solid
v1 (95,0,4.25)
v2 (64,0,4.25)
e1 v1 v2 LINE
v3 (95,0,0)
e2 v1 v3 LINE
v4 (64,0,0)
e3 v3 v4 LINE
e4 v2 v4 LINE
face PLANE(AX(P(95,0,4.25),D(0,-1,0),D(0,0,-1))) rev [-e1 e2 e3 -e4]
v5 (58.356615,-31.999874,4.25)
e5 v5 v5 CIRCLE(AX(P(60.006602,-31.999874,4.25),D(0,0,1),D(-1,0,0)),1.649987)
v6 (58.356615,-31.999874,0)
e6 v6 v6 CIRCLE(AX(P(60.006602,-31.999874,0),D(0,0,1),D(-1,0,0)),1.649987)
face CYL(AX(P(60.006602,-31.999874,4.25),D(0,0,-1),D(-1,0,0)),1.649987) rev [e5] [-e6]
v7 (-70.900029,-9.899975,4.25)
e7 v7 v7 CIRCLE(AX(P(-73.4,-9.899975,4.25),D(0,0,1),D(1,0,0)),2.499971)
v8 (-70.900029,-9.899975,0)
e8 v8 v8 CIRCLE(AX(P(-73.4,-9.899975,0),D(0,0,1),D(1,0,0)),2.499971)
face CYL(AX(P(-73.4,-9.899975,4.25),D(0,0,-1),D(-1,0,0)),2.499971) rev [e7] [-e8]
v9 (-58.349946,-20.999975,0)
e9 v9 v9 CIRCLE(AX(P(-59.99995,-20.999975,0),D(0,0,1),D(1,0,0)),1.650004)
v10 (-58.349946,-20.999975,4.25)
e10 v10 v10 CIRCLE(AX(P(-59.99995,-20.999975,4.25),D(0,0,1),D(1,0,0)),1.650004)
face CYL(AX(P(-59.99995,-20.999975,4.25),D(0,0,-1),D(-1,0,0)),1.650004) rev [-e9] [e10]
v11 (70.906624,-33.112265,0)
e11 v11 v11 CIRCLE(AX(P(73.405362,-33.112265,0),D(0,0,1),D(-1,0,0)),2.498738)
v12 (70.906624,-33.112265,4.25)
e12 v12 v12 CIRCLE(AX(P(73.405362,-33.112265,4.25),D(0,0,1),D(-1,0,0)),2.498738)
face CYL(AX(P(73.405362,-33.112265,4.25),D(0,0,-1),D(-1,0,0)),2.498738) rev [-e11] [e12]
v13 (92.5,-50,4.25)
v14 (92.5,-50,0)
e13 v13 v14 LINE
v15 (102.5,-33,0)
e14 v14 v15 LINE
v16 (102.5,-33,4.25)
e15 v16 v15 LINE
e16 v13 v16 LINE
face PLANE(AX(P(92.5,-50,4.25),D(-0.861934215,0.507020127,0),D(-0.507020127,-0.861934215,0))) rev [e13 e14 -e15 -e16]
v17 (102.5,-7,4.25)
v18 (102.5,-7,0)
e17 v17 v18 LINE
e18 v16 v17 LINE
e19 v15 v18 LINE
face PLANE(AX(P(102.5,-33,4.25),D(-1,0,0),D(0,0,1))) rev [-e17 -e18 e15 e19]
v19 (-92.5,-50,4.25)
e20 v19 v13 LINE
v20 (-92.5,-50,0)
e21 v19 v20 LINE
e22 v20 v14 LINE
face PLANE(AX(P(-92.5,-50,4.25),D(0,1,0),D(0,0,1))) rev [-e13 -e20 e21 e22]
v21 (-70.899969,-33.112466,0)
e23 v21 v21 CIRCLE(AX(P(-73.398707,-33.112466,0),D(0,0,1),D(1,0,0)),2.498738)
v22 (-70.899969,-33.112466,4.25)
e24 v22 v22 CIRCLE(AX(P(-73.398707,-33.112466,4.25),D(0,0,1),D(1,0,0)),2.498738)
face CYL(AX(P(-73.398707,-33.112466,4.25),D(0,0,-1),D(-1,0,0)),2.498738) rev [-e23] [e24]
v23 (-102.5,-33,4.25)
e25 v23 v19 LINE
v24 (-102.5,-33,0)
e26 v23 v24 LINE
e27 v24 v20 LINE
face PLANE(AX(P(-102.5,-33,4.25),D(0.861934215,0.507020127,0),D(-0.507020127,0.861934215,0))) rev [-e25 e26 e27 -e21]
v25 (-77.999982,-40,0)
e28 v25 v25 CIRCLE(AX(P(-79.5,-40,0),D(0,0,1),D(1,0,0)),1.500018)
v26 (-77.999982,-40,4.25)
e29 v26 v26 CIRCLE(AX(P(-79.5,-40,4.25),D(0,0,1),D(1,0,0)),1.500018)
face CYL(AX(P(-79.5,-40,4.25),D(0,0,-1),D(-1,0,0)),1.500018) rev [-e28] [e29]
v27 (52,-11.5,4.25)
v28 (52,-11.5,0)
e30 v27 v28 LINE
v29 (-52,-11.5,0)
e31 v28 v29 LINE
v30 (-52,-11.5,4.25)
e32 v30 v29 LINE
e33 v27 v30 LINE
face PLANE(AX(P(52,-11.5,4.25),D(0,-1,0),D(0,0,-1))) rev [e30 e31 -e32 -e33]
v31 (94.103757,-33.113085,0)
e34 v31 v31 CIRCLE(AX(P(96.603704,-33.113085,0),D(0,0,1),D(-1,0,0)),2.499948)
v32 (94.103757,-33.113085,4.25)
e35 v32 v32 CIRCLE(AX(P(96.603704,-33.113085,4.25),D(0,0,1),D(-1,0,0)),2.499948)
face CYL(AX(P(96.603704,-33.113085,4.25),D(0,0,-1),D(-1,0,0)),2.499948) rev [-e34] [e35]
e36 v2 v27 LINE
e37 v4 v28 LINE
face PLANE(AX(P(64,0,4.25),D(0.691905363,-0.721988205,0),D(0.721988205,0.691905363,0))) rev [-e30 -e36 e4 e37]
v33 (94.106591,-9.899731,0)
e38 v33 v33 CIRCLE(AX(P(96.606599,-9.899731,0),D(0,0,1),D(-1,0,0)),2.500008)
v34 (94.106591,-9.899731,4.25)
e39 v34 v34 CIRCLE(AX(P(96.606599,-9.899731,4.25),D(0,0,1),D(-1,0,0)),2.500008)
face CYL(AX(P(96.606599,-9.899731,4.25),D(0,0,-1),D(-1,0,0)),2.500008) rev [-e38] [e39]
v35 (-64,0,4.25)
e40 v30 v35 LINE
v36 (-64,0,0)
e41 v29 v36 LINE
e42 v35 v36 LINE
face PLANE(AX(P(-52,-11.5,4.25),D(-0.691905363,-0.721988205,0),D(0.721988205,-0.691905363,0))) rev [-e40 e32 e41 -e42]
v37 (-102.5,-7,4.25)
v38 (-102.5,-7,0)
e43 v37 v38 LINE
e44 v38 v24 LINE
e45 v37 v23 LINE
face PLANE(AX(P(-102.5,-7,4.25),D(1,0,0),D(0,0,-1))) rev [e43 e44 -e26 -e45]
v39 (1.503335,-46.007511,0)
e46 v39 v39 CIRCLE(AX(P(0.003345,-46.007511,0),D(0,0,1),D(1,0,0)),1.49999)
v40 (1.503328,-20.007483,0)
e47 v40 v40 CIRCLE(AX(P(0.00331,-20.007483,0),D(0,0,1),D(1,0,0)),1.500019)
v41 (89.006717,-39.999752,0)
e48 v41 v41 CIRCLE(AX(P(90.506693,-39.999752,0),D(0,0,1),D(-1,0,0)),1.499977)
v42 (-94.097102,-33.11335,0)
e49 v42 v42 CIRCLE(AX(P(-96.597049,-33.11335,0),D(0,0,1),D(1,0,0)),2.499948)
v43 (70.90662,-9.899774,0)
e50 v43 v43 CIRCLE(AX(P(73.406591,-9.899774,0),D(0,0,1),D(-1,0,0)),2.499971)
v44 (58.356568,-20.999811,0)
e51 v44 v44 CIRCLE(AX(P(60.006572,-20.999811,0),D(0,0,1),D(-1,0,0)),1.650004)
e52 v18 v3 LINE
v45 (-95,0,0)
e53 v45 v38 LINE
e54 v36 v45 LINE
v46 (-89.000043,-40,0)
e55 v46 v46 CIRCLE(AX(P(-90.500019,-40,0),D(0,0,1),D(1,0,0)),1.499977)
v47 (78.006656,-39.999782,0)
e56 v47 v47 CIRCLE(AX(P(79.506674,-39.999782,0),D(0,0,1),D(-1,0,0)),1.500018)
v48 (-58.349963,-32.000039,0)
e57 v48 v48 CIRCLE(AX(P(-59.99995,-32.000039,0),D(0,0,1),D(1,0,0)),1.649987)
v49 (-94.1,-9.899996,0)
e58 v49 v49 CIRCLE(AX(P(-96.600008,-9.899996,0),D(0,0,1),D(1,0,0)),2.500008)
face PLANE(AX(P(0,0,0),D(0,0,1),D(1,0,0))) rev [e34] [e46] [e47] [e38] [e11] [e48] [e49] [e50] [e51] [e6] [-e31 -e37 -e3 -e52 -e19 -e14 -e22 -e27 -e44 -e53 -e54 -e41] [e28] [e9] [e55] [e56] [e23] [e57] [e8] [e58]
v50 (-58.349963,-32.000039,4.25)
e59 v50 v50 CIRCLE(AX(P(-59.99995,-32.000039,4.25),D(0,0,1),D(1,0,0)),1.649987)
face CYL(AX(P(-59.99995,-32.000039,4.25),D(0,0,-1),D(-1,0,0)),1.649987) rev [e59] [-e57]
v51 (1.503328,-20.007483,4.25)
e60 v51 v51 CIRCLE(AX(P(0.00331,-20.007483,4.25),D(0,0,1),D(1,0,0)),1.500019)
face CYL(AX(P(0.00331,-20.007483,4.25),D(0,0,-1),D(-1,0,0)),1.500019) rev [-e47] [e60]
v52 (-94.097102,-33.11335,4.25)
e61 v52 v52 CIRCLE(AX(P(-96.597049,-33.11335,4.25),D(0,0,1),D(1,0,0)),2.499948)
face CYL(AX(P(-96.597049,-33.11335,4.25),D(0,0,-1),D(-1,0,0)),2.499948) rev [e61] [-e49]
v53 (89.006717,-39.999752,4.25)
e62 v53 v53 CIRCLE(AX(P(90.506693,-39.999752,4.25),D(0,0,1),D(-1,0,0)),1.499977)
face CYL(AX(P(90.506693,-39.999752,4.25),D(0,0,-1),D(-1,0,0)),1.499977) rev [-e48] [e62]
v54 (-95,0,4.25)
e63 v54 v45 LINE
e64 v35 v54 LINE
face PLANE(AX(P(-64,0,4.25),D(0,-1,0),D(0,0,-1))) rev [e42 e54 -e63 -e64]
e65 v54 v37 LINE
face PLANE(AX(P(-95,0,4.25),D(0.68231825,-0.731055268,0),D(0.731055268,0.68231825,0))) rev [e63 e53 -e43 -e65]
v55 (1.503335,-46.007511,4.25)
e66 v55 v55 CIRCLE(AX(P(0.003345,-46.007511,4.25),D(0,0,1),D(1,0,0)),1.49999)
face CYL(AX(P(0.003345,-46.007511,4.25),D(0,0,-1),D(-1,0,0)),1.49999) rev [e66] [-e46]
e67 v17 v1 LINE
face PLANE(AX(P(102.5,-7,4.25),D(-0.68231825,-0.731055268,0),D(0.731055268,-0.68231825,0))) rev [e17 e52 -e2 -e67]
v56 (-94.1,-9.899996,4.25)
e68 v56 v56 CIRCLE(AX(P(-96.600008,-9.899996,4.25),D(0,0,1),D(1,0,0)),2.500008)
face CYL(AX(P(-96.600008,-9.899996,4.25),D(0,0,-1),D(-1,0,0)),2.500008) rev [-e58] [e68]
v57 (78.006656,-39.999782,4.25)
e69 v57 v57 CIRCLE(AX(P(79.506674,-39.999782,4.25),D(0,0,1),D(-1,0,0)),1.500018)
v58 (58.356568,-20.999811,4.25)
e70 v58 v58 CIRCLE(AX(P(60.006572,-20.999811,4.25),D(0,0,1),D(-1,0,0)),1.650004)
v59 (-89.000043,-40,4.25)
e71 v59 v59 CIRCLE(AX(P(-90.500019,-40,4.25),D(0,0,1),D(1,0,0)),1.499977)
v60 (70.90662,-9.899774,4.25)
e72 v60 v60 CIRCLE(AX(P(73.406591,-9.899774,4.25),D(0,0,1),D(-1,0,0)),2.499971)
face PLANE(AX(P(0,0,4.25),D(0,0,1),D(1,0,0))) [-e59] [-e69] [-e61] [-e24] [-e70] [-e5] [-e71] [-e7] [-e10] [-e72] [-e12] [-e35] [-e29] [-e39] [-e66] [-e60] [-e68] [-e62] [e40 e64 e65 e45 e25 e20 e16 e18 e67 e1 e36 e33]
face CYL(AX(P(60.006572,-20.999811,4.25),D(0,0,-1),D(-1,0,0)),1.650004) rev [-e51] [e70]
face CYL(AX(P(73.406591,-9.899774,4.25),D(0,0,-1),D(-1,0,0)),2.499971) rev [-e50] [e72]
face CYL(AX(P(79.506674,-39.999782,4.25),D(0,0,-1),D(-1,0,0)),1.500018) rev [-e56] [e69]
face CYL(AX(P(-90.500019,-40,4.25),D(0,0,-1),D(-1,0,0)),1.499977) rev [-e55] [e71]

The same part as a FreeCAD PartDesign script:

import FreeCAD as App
import Part
import Sketcher
Q = App.Units.Quantity

doc = App.newDocument("Part")
params = doc.addObject("Spreadsheet::Sheet", "Params")
for row, (alias, value) in enumerate([
    ("sketch1_width", "31 mm"),
    ("sketch1_width2", "104 mm"),
    ("sketch1_width3", "185 mm"),
    ("sketch1_height", "26 mm"),
    ("pad1_length", "4.25 mm"),
], start=1):
    params.set(f"A{row}", alias)
    params.set(f"B{row}", "=" + value)
    params.setAlias(f"B{row}", alias)

body = doc.addObject("PartDesign::Body", "Body")

# Sketch on XY plane
sketch1 = body.newObject("Sketcher::SketchObject", "Sketch")
sketch1.AttachmentSupport = (doc.getObject("XY_Plane"), [""])
sketch1.MapMode = "FlatFace"
sketch1.addGeometry(Part.LineSegment(App.Vector(102.5, -33, 0), App.Vector(102.5, -7, 0)), False)
sketch1.addGeometry(Part.LineSegment(App.Vector(102.5, -7, 0), App.Vector(95, 0, 0)), False)
sketch1.addGeometry(Part.LineSegment(App.Vector(95, 0, 0), App.Vector(64, 0, 0)), False)
sketch1.addGeometry(Part.LineSegment(App.Vector(64, 0, 0), App.Vector(52, -11.5, 0)), False)
sketch1.addGeometry(Part.LineSegment(App.Vector(52, -11.5, 0), App.Vector(-52, -11.5, 0)), False)
sketch1.addGeometry(Part.LineSegment(App.Vector(-52, -11.5, 0), App.Vector(-64, 0, 0)), False)
sketch1.addGeometry(Part.LineSegment(App.Vector(-64, 0, 0), App.Vector(-95, 0, 0)), False)
sketch1.addGeometry(Part.LineSegment(App.Vector(-95, 0, 0), App.Vector(-102.5, -7, 0)), False)
sketch1.addGeometry(Part.LineSegment(App.Vector(-102.5, -7, 0), App.Vector(-102.5, -33, 0)), False)
sketch1.addGeometry(Part.LineSegment(App.Vector(-102.5, -33, 0), App.Vector(-92.5, -50, 0)), False)
sketch1.addGeometry(Part.LineSegment(App.Vector(-92.5, -50, 0), App.Vector(92.5, -50, 0)), False)
sketch1.addGeometry(Part.LineSegment(App.Vector(92.5, -50, 0), App.Vector(102.5, -33, 0)), False)
sketch1.addGeometry(Part.Circle(App.Vector(-90.5, -40, 0), App.Vector(0, 0, 1), 1.5), False)
sketch1.addGeometry(Part.Circle(App.Vector(-79.5, -40, 0), App.Vector(0, 0, 1), 1.5), False)
sketch1.addGeometry(Part.Circle(App.Vector(-96.6, -33.1, 0), App.Vector(0, 0, 1), 2.5), False)
sketch1.addGeometry(Part.Circle(App.Vector(-73.4, -33.1, 0), App.Vector(0, 0, 1), 2.5), False)
sketch1.addGeometry(Part.Circle(App.Vector(-60, -32, 0), App.Vector(0, 0, 1), 1.6), False)
sketch1.addGeometry(Part.Circle(App.Vector(0, -46, 0), App.Vector(0, 0, 1), 1.5), False)
sketch1.addGeometry(Part.Circle(App.Vector(79.5, -40, 0), App.Vector(0, 0, 1), 1.5), False)
sketch1.addGeometry(Part.Circle(App.Vector(90.5, -40, 0), App.Vector(0, 0, 1), 1.5), False)
sketch1.addGeometry(Part.Circle(App.Vector(73.4, -33.1, 0), App.Vector(0, 0, 1), 2.5), False)
sketch1.addGeometry(Part.Circle(App.Vector(96.6, -33.1, 0), App.Vector(0, 0, 1), 2.5), False)
sketch1.addGeometry(Part.Circle(App.Vector(60, -32, 0), App.Vector(0, 0, 1), 1.6), False)
sketch1.addGeometry(Part.Circle(App.Vector(-60, -21, 0), App.Vector(0, 0, 1), 1.7), False)
sketch1.addGeometry(Part.Circle(App.Vector(-96.6, -9.9, 0), App.Vector(0, 0, 1), 2.5), False)
sketch1.addGeometry(Part.Circle(App.Vector(-73.4, -9.9, 0), App.Vector(0, 0, 1), 2.5), False)
sketch1.addGeometry(Part.Circle(App.Vector(0, -20, 0), App.Vector(0, 0, 1), 1.5), False)
sketch1.addGeometry(Part.Circle(App.Vector(60, -21, 0), App.Vector(0, 0, 1), 1.7), False)
sketch1.addGeometry(Part.Circle(App.Vector(73.4, -9.9, 0), App.Vector(0, 0, 1), 2.5), False)
sketch1.addGeometry(Part.Circle(App.Vector(96.6, -9.9, 0), App.Vector(0, 0, 1), 2.5), False)
sketch1.addConstraint(Sketcher.Constraint("Coincident", 0, 2, 1, 1))
sketch1.addConstraint(Sketcher.Constraint("Coincident", 1, 2, 2, 1))
sketch1.addConstraint(Sketcher.Constraint("Coincident", 2, 2, 3, 1))
sketch1.addConstraint(Sketcher.Constraint("Coincident", 3, 2, 4, 1))
sketch1.addConstraint(Sketcher.Constraint("Coincident", 4, 2, 5, 1))
sketch1.addConstraint(Sketcher.Constraint("Coincident", 5, 2, 6, 1))
sketch1.addConstraint(Sketcher.Constraint("Coincident", 6, 2, 7, 1))
sketch1.addConstraint(Sketcher.Constraint("Coincident", 7, 2, 8, 1))
sketch1.addConstraint(Sketcher.Constraint("Coincident", 8, 2, 9, 1))
sketch1.addConstraint(Sketcher.Constraint("Coincident", 9, 2, 10, 1))
sketch1.addConstraint(Sketcher.Constraint("Coincident", 10, 2, 11, 1))
sketch1.addConstraint(Sketcher.Constraint("Coincident", 11, 2, 0, 1))
sketch1.addConstraint(Sketcher.Constraint("Vertical", 0))
sketch1.addConstraint(Sketcher.Constraint("Horizontal", 2))
sketch1.addConstraint(Sketcher.Constraint("Horizontal", 4))
sketch1.addConstraint(Sketcher.Constraint("Horizontal", 6))
sketch1.addConstraint(Sketcher.Constraint("Vertical", 8))
sketch1.addConstraint(Sketcher.Constraint("Horizontal", 10))
sketch1.addConstraint(Sketcher.Constraint("Equal", 13, 18))
sketch1.addConstraint(Sketcher.Constraint("Equal", 12, 19))
sketch1.addConstraint(Sketcher.Constraint("Equal", 15, 20))
sketch1.addConstraint(Sketcher.Constraint("Equal", 14, 21))
sketch1.addConstraint(Sketcher.Constraint("Equal", 16, 22))
sketch1.addConstraint(Sketcher.Constraint("Equal", 18, 26))
sketch1.addConstraint(Sketcher.Constraint("Equal", 23, 27))
sketch1.addConstraint(Sketcher.Constraint("Equal", 25, 28))
sketch1.addConstraint(Sketcher.Constraint("Equal", 24, 29))
sketch1.addConstraint(Sketcher.Constraint("Symmetric", 2, 2, 5, 2, -1, 1))
sketch1.addConstraint(Sketcher.Constraint("Symmetric", 1, 2, 6, 2, -2))
sketch1.addConstraint(Sketcher.Constraint("Symmetric", 0, 2, 7, 2, -2))
sketch1.addConstraint(Sketcher.Constraint("Horizontal", 12, 3, 13, 3))
sketch1.addConstraint(Sketcher.Constraint("Horizontal", 8, 2, 11, 2))
sketch1.addConstraint(Sketcher.Constraint("Vertical", 16, 3, 23, 3))
sketch1.addConstraint(Sketcher.Constraint("Equal", 3, 5))
sketch1.addConstraint(Sketcher.Constraint("Equal", 9, 11))
sketch1.addConstraint(Sketcher.Constraint("DistanceX", 2, 2, 2, 1, Q("31 mm")))
sketch1.addConstraint(Sketcher.Constraint("DistanceX", 4, 2, 4, 1, Q("104 mm")))
sketch1.addConstraint(Sketcher.Constraint("DistanceX", 10, 1, 10, 2, Q("185 mm")))
sketch1.addConstraint(Sketcher.Constraint("DistanceY", 0, 1, 0, 2, Q("26 mm")))
sketch1.addConstraint(Sketcher.Constraint("DistanceY", 12, 3, -1, 1, Q("40 mm")))
sketch1.addConstraint(Sketcher.Constraint("DistanceY", 0, 2, -1, 1, Q("7 mm")))
sketch1.addConstraint(Sketcher.Constraint("DistanceX", -1, 1, 1, 2, Q("95 mm")))
sketch1.addConstraint(Sketcher.Constraint("DistanceY", 9, 2, -1, 1, Q("50 mm")))
sketch1.addConstraint(Sketcher.Constraint("DistanceX", 8, 2, 13, 3, Q("23 mm")))
sketch1.addConstraint(Sketcher.Constraint("DistanceX", 9, 2, 13, 3, Q("13 mm")))
sketch1.addConstraint(Sketcher.Constraint("DistanceX", 25, 3, -1, 1, Q("73.4 mm")))
sketch1.addConstraint(Sketcher.Constraint("DistanceY", 3, 2, -1, 1, Q("11.5 mm")))
sketch1.addConstraint(Sketcher.Constraint("DistanceY", 23, 3, 25, 3, Q("11.1 mm")))
sketch1.addConstraint(Sketcher.Constraint("Diameter", 17, Q("2.999979 mm")))
sketch1.addConstraint(Sketcher.Constraint("Diameter", 12, Q("2.999953 mm")))
sketch1.addConstraint(Sketcher.Constraint("Diameter", 13, Q("3.000036 mm")))
sketch1.addConstraint(Sketcher.Constraint("Diameter", 14, Q("4.999895 mm")))
sketch1.addConstraint(Sketcher.Constraint("Diameter", 15, Q("4.997477 mm")))
sketch1.addConstraint(Sketcher.Constraint("Diameter", 16, Q("3.299974 mm")))
sketch1.addConstraint(Sketcher.Constraint("Diameter", 23, Q("3.300008 mm")))
sketch1.addConstraint(Sketcher.Constraint("Diameter", 24, Q("5.000016 mm")))
sketch1.addConstraint(Sketcher.Constraint("Diameter", 25, Q("4.999943 mm")))
sketch1.addConstraint(Sketcher.Constraint("DistanceX", -1, 1, 22, 3, Q("60.006602 mm")))
sketch1.addConstraint(Sketcher.Constraint("DistanceX", -1, 1, 29, 3, Q("96.606599 mm")))
sketch1.addConstraint(Sketcher.Constraint("DistanceX", 14, 3, 16, 3, Q("36.597099 mm")))
sketch1.addConstraint(Sketcher.Constraint("DistanceX", 15, 3, 19, 3, Q("163.9054 mm")))
sketch1.addConstraint(Sketcher.Constraint("DistanceY", 15, 3, 20, 3, Q("0.000201 mm")))
sketch1.addConstraint(Sketcher.Constraint("DistanceX", 24, 3, 15, 3, Q("23.201301 mm")))
sketch1.addConstraint(Sketcher.Constraint("DistanceY", 22, 3, 28, 3, Q("22.1001 mm")))
sketch1.addConstraint(Sketcher.Constraint("DistanceX", 12, 3, -1, 1, Q("90.500019 mm")))
sketch1.addConstraint(Sketcher.Constraint("DistanceX", 14, 3, -1, 1, Q("96.597049 mm")))
sketch1.addConstraint(Sketcher.Constraint("DistanceY", 14, 3, -1, 1, Q("33.11335 mm")))
sketch1.addConstraint(Sketcher.Constraint("DistanceY", 16, 3, -1, 1, Q("32.000039 mm")))
sketch1.addConstraint(Sketcher.Constraint("DistanceY", 17, 3, -1, 1, Q("46.007511 mm")))
sketch1.addConstraint(Sketcher.Constraint("DistanceY", 19, 3, -1, 1, Q("39.999752 mm")))
sketch1.addConstraint(Sketcher.Constraint("DistanceX", 24, 3, -1, 1, Q("96.600008 mm")))
sketch1.addConstraint(Sketcher.Constraint("DistanceX", -1, 1, 26, 3, Q("0.00331 mm")))
sketch1.addConstraint(Sketcher.Constraint("DistanceX", -1, 1, 27, 3, Q("60.006572 mm")))
sketch1.addConstraint(Sketcher.Constraint("DistanceY", 27, 3, -1, 1, Q("20.999811 mm")))
sketch1.addConstraint(Sketcher.Constraint("DistanceX", -1, 1, 28, 3, Q("73.406591 mm")))
sketch1.addConstraint(Sketcher.Constraint("DistanceY", 29, 3, -1, 1, Q("9.899731 mm")))
sketch1.addConstraint(Sketcher.Constraint("DistanceX", 17, 3, 18, 3, Q("79.503329 mm")))
sketch1.addConstraint(Sketcher.Constraint("DistanceY", 17, 3, 18, 3, Q("6.007729 mm")))
sketch1.addConstraint(Sketcher.Constraint("DistanceX", 15, 3, 18, 3, Q("152.905381 mm")))
sketch1.addConstraint(Sketcher.Constraint("DistanceX", 20, 3, 18, 3, Q("6.101312 mm")))
sketch1.addConstraint(Sketcher.Constraint("DistanceX", 19, 3, 21, 3, Q("6.097011 mm")))
sketch1.addConstraint(Sketcher.Constraint("DistanceY", 21, 3, 20, 3, Q("0.00082 mm")))
sketch1.addConstraint(Sketcher.Constraint("DistanceY", 20, 3, 22, 3, Q("1.112391 mm")))
sketch1.addConstraint(Sketcher.Constraint("DistanceY", 15, 3, 23, 3, Q("12.112491 mm")))
sketch1.addConstraint(Sketcher.Constraint("DistanceY", 15, 3, 24, 3, Q("23.21247 mm")))
sketch1.addConstraint(Sketcher.Constraint("DistanceY", 23, 3, 26, 3, Q("0.992492 mm")))
sketch1.addConstraint(Sketcher.Constraint("DistanceY", 18, 3, 28, 3, Q("30.100008 mm")))
sketch1.setExpression("Constraints[35]", "Params.sketch1_width")
sketch1.setExpression("Constraints[36]", "Params.sketch1_width2")
sketch1.setExpression("Constraints[37]", "Params.sketch1_width3")
sketch1.setExpression("Constraints[38]", "Params.sketch1_height")
pad1 = body.newObject("PartDesign::Pad", "Pad")
pad1.Profile = sketch1
pad1.setExpression("Length", "Params.pad1_length")

doc.recompute()
